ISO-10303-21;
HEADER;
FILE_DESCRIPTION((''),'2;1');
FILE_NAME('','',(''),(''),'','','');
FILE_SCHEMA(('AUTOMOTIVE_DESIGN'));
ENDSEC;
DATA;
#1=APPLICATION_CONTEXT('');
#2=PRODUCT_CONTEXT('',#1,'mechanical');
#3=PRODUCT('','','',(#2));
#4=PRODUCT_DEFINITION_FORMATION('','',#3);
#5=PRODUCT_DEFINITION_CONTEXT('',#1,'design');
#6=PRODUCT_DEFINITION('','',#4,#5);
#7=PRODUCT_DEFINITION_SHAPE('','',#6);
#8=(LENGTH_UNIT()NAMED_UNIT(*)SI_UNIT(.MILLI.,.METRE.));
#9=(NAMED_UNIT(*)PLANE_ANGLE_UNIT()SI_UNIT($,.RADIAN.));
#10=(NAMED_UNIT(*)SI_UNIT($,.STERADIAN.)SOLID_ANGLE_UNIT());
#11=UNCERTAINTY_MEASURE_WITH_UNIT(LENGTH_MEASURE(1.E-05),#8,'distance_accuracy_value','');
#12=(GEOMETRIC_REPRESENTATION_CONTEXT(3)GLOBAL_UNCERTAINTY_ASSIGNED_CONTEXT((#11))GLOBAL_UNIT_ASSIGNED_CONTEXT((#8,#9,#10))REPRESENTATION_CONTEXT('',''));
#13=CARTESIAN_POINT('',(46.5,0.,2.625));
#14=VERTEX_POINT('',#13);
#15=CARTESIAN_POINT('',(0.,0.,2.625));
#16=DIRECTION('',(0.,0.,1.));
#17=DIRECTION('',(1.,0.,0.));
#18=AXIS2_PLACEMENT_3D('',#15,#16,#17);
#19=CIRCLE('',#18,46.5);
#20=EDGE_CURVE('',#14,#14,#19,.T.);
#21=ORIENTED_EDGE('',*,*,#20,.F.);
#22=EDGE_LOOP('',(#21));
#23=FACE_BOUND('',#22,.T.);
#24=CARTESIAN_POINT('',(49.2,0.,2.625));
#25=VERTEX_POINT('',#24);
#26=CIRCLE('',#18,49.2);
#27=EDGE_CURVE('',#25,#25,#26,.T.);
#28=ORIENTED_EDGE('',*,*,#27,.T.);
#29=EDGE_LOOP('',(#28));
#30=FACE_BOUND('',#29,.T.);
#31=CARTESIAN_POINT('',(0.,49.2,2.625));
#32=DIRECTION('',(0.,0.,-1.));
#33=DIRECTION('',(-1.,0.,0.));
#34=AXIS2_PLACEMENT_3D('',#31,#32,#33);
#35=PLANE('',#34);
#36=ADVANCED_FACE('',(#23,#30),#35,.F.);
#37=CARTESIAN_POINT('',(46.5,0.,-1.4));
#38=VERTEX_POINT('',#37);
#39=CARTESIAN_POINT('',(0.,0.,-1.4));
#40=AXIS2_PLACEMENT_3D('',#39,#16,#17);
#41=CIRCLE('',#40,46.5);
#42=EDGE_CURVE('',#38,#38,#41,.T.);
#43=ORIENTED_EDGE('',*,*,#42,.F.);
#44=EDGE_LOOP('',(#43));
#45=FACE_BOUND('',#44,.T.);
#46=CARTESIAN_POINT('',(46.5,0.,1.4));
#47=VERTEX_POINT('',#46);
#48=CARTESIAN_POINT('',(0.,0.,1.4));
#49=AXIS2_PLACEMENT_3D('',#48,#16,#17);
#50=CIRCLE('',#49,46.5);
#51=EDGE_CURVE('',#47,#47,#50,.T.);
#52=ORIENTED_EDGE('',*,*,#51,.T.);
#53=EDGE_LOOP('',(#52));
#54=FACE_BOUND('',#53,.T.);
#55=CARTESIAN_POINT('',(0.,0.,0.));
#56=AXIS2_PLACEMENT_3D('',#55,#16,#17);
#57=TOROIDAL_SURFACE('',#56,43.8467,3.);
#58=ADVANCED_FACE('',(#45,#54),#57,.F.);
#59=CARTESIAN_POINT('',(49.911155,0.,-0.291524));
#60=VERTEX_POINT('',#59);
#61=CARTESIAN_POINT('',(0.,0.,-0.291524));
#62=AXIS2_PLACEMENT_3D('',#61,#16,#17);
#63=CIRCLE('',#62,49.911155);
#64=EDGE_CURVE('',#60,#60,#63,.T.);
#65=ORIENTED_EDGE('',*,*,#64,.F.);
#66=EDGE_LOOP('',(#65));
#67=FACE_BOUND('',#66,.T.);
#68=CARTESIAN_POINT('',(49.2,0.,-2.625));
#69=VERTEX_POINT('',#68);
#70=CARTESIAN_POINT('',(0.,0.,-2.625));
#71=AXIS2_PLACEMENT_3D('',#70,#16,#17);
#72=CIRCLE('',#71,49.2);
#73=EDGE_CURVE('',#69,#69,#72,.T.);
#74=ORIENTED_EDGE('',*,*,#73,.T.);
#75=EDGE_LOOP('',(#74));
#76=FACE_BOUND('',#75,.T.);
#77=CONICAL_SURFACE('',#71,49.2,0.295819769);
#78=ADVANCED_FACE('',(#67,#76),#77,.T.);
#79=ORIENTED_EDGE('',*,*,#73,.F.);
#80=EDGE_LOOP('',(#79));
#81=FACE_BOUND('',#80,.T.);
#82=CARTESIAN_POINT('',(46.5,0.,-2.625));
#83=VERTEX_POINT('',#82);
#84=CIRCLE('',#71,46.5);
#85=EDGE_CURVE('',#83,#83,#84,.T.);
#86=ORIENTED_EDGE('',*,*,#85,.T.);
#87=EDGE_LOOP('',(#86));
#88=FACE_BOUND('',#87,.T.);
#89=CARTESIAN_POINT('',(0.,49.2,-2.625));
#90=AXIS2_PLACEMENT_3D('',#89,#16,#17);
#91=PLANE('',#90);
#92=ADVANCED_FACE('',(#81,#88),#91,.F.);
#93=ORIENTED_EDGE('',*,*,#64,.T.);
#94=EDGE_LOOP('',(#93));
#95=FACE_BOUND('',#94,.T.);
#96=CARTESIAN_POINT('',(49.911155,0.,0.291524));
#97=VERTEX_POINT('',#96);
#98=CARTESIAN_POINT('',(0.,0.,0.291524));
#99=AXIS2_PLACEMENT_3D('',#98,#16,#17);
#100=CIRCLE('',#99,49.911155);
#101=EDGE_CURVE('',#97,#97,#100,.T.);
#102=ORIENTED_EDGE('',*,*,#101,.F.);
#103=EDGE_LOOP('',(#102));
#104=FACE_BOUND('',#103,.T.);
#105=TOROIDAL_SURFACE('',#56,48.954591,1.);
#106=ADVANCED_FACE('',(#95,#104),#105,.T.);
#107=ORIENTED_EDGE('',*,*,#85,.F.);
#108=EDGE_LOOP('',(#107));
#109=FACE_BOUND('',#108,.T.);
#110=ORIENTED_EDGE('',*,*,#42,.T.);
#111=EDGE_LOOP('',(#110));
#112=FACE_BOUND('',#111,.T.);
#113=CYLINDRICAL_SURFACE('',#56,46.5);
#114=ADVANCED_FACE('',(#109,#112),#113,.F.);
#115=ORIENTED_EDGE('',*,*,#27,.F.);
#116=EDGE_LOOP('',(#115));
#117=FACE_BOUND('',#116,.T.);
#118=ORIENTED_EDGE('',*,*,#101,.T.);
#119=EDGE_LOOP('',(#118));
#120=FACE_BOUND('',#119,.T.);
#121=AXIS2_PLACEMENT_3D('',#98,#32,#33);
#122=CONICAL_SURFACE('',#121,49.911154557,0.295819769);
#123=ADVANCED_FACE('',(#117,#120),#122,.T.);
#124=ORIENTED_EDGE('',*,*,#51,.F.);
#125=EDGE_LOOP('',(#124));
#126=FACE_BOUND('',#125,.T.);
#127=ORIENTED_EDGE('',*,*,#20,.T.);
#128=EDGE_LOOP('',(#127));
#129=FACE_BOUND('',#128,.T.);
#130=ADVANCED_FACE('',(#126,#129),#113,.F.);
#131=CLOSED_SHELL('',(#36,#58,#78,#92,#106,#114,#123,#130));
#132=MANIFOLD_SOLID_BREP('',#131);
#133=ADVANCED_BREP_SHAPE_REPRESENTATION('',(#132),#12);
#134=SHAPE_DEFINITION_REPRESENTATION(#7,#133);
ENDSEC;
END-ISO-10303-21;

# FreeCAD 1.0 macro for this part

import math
import FreeCAD as App
import Part
import Sketcher

V = App.Vector
Q = App.Units.Quantity

doc = App.newDocument("Part")
params = doc.addObject("Spreadsheet::Sheet", "Params")
for row, (alias, value) in enumerate([
    ("sketch1_radius", "1 mm"),
    ("sketch1_radius2", "3 mm"),
    ("sketch1_width", "2.7 mm"),
    ("revolution_angle", "360 deg"),
], start=1):
    params.set(f"A{row}", alias)
    params.set(f"B{row}", "=" + value)
    params.setAlias(f"B{row}", alias)

body = doc.addObject("PartDesign::Body", "Body")

sketch1 = doc.addObject("Sketcher::SketchObject", "Sketch")
body.addObject(sketch1)
sketch1.AttachmentSupport = (doc.YZ_Plane, [""])
sketch1.MapMode = "FlatFace"
sketch1.addGeometry(Part.LineSegment(V(49.2, -2.6, 0), V(49.9, -0.3, 0)), False)
sketch1.addGeometry(Part.ArcOfCircle(Part.Circle(V(49, 0, 0), V(0, 0, 1), 1), math.radians(-17), math.radians(17)), False)
sketch1.addGeometry(Part.LineSegment(V(49.9, 0.3, 0), V(49.2, 2.6, 0)), False)
sketch1.addGeometry(Part.LineSegment(V(49.2, 2.6, 0), V(46.5, 2.6, 0)), False)
sketch1.addGeometry(Part.LineSegment(V(46.5, 2.6, 0), V(46.5, 1.4, 0)), False)
sketch1.addGeometry(Part.ArcOfCircle(Part.Circle(V(43.8, 0, 0), V(0, 0, 1), 3), math.radians(-28), math.radians(28)), False)
sketch1.addGeometry(Part.LineSegment(V(46.5, -1.4, 0), V(46.5, -2.6, 0)), False)
sketch1.addGeometry(Part.LineSegment(V(46.5, -2.6, 0), V(49.2, -2.6, 0)), False)
sketch1.addConstraint(Sketcher.Constraint("Tangent", 0, 2, 1, 1))
sketch1.addConstraint(Sketcher.Constraint("Tangent", 1, 2, 2, 1))
sketch1.addConstraint(Sketcher.Constraint("Coincident", 2, 2, 3, 1))
sketch1.addConstraint(Sketcher.Constraint("Coincident", 3, 2, 4, 1))
sketch1.addConstraint(Sketcher.Constraint("Coincident", 4, 2, 5, 2))
sketch1.addConstraint(Sketcher.Constraint("Coincident", 5, 1, 6, 1))
sketch1.addConstraint(Sketcher.Constraint("Coincident", 6, 2, 7, 1))
sketch1.addConstraint(Sketcher.Constraint("Coincident", 7, 2, 0, 1))
sketch1.addConstraint(Sketcher.Constraint("Horizontal", 3))
sketch1.addConstraint(Sketcher.Constraint("Vertical", 4))
sketch1.addConstraint(Sketcher.Constraint("Vertical", 6))
sketch1.addConstraint(Sketcher.Constraint("Horizontal", 7))
sketch1.addConstraint(Sketcher.Constraint("Symmetric", 0, 2, 1, 2, -1))
sketch1.addConstraint(Sketcher.Constraint("Symmetric", 4, 2, 5, 1, -1))
sketch1.addConstraint(Sketcher.Constraint("Vertical", 2, 2, 7, 2))
sketch1.addConstraint(Sketcher.Constraint("Radius", 1, Q("1 mm")))
sketch1.addConstraint(Sketcher.Constraint("Radius", 5, Q("3 mm")))
sketch1.addConstraint(Sketcher.Constraint("DistanceX", 3, 2, 3, 1, Q("2.7 mm")))
sketch1.addConstraint(Sketcher.Constraint("DistanceX", -1, 1, 2, 2, Q("49.2 mm")))
sketch1.addConstraint(Sketcher.Constraint("DistanceY", -1, 1, 4, 2, Q("1.4 mm")))
sketch1.addConstraint(Sketcher.Constraint("DistanceY", 4, 2, 4, 1, Q("1.225 mm")))
sketch1.addConstraint(Sketcher.Constraint("DistanceX", -1, 1, 1, 3, Q("48.954591 mm")))
sketch1.setExpression("Constraints[15]", "Params.sketch1_radius")
sketch1.setExpression("Constraints[16]", "Params.sketch1_radius2")
sketch1.setExpression("Constraints[17]", "Params.sketch1_width")
revolution = doc.addObject("PartDesign::Revolution", "Revolution")
body.addObject(revolution)
revolution.Profile = sketch1
revolution.ReferenceAxis = (sketch1, ["V_Axis"])
revolution.setExpression("Angle", "Params.revolution_angle")

doc.recompute()
